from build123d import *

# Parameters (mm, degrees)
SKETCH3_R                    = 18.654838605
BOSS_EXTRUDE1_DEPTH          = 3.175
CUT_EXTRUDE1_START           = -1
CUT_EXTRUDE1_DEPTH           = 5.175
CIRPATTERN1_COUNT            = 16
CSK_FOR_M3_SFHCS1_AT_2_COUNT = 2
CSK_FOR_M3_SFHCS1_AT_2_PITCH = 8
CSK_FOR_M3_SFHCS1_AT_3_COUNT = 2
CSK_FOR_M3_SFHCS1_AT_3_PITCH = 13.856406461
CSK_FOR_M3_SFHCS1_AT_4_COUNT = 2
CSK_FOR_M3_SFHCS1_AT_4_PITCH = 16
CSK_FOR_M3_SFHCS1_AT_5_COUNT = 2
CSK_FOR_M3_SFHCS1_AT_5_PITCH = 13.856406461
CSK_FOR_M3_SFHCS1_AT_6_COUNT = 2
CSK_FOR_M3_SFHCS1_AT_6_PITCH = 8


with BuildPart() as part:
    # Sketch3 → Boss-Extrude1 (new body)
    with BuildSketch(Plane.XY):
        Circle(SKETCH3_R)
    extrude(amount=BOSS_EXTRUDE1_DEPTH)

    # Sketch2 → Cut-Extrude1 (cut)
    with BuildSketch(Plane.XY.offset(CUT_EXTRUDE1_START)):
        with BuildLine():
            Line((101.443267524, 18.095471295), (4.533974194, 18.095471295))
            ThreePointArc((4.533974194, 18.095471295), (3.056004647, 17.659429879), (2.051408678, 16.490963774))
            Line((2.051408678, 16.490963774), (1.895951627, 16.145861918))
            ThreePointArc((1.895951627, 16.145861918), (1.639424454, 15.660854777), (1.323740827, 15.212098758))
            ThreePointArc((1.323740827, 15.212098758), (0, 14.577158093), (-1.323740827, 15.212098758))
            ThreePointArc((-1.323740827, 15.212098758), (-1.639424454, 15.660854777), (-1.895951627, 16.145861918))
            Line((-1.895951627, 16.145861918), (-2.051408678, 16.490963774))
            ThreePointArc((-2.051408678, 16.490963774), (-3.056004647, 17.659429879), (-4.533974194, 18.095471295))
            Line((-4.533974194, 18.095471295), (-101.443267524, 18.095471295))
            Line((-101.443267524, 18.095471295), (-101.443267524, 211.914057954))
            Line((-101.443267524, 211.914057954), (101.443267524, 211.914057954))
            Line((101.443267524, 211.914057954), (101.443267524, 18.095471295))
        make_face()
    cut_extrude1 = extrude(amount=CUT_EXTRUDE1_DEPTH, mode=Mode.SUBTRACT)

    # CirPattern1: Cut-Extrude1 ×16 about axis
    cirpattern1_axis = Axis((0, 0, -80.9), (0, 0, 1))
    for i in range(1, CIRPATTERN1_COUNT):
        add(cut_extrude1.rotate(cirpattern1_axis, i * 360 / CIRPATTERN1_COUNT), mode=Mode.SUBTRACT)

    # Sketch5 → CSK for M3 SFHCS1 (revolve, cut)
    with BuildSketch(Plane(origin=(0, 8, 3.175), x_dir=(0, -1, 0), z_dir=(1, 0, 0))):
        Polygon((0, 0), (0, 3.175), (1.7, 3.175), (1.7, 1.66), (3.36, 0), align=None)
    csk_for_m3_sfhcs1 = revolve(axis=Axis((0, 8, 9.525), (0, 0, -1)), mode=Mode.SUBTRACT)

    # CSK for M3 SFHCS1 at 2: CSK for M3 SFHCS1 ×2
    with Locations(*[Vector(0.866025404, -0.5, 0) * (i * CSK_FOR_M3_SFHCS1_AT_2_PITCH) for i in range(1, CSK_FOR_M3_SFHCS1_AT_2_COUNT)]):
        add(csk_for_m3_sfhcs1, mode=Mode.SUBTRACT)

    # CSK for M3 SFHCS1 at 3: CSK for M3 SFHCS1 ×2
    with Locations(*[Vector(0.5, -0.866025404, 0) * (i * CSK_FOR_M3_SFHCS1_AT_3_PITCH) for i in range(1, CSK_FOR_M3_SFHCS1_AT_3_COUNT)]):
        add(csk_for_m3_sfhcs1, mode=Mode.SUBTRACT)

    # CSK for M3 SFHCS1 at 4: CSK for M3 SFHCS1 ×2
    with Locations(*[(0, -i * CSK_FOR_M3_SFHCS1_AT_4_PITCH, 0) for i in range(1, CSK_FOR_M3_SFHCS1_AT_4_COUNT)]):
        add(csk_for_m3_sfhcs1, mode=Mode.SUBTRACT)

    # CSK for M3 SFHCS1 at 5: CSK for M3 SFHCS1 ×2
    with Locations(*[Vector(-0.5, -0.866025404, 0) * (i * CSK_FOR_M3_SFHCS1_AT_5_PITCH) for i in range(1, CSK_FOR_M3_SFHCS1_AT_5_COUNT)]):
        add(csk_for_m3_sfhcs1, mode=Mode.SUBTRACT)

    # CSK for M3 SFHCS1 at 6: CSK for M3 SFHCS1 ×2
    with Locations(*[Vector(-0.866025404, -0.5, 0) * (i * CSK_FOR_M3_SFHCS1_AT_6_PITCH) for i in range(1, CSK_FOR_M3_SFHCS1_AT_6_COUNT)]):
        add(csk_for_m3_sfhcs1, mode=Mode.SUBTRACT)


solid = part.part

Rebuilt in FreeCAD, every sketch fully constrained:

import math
import FreeCAD as App
import Part
import Sketcher
Q = App.Units.Quantity

doc = App.newDocument("Part")
body = doc.addObject("PartDesign::Body", "Body")

sketch1 = body.newObject("Sketcher::SketchObject", "Sketch")
sketch1.AttachmentSupport = (doc.getObject("XY_Plane"), [""])
sketch1.MapMode = "FlatFace"
sketch1.addGeometry(Part.Circle(App.Vector(0, 0, 0), App.Vector(0, 0, 1), 19), False)
sketch1.addConstraint(Sketcher.Constraint("Coincident", 0, 3, -1, 1))
sketch1.addConstraint(Sketcher.Constraint("Diameter", 0, Q("37.309677 mm")))
pad1 = body.newObject("PartDesign::Pad", "Pad")
pad1.Profile = sketch1
pad1.Length = 3.175

sketch2 = body.newObject("Sketcher::SketchObject", "Sketch001")
sketch2.AttachmentSupport = (doc.getObject("XY_Plane"), [""])
sketch2.MapMode = "FlatFace"
sketch2.AttachmentOffset = App.Placement(App.Vector(0, 0, -1), App.Rotation())
sketch2.addGeometry(Part.LineSegment(App.Vector(4.53, 18.1, 0), App.Vector(101.44, 18.1, 0)), False)
sketch2.addGeometry(Part.LineSegment(App.Vector(101.44, 18.1, 0), App.Vector(101.44, 211.91, 0)), False)
sketch2.addGeometry(Part.LineSegment(App.Vector(101.44, 211.91, 0), App.Vector(-101.44, 211.91, 0)), False)
sketch2.addGeometry(Part.LineSegment(App.Vector(-101.44, 211.91, 0), App.Vector(-101.44, 18.1, 0)), False)
sketch2.addGeometry(Part.LineSegment(App.Vector(-101.44, 18.1, 0), App.Vector(-4.53, 18.1, 0)), False)
sketch2.addGeometry(Part.ArcOfCircle(Part.Circle(App.Vector(-4.53, 15.37, 0), App.Vector(0, 0, 1), 2.72), math.radians(24), math.radians(90)), False)
sketch2.addGeometry(Part.LineSegment(App.Vector(-2.05, 16.49, 0), App.Vector(-1.9, 16.15, 0)), False)
sketch2.addGeometry(Part.ArcOfCircle(Part.Circle(App.Vector(2.06, 17.93, 0), App.Vector(0, 0, 1), 4.34), math.radians(-155.75), math.radians(-141.25)), False)
sketch2.addGeometry(Part.ArcOfCircle(Part.Circle(App.Vector(0, 16.27, 0), App.Vector(0, 0, 1), 1.7), math.radians(-141), math.radians(-39)), False)
sketch2.addGeometry(Part.ArcOfCircle(Part.Circle(App.Vector(-2.06, 17.93, 0), App.Vector(0, 0, 1), 4.34), math.radians(-38.75), math.radians(-24.25)), False)
sketch2.addGeometry(Part.LineSegment(App.Vector(1.9, 16.15, 0), App.Vector(2.05, 16.49, 0)), False)
sketch2.addGeometry(Part.ArcOfCircle(Part.Circle(App.Vector(4.53, 15.37, 0), App.Vector(0, 0, 1), 2.72), math.radians(90), math.radians(156)), False)
sketch2.addConstraint(Sketcher.Constraint("Coincident", 0, 2, 1, 1))
sketch2.addConstraint(Sketcher.Constraint("Coincident", 1, 2, 2, 1))
sketch2.addConstraint(Sketcher.Constraint("Coincident", 2, 2, 3, 1))
sketch2.addConstraint(Sketcher.Constraint("Coincident", 3, 2, 4, 1))
sketch2.addConstraint(Sketcher.Constraint("Tangent", 4, 2, 5, 2))
sketch2.addConstraint(Sketcher.Constraint("Tangent", 5, 1, 6, 1))
sketch2.addConstraint(Sketcher.Constraint("Tangent", 6, 2, 7, 1))
sketch2.addConstraint(Sketcher.Constraint("Tangent", 7, 2, 8, 1))
sketch2.addConstraint(Sketcher.Constraint("Tangent", 8, 2, 9, 1))
sketch2.addConstraint(Sketcher.Constraint("Tangent", 9, 2, 10, 1))
sketch2.addConstraint(Sketcher.Constraint("Tangent", 10, 2, 11, 2))
sketch2.addConstraint(Sketcher.Constraint("Tangent", 11, 1, 0, 1))
sketch2.addConstraint(Sketcher.Constraint("Horizontal", 0))
sketch2.addConstraint(Sketcher.Constraint("Vertical", 1))
sketch2.addConstraint(Sketcher.Constraint("Horizontal", 2))
sketch2.addConstraint(Sketcher.Constraint("Vertical", 3))
sketch2.addConstraint(Sketcher.Constraint("Horizontal", 4))
sketch2.addConstraint(Sketcher.Constraint("Equal", 7, 9))
sketch2.addConstraint(Sketcher.Constraint("Equal", 5, 11))
sketch2.addConstraint(Sketcher.Constraint("Symmetric", 7, 3, 9, 3, -2))
sketch2.addConstraint(Sketcher.Constraint("Symmetric", 5, 3, 11, 3, -2))
sketch2.addConstraint(Sketcher.Constraint("Equal", 0, 4))
sketch2.addConstraint(Sketcher.Constraint("Angle", 6, Q("-65.75 deg")))
sketch2.addConstraint(Sketcher.Constraint("Radius", 5, Q("2.722822 mm")))
sketch2.addConstraint(Sketcher.Constraint("Radius", 7, Q("4.338955 mm")))
sketch2.addConstraint(Sketcher.Constraint("Radius", 8, Q("1.697355 mm")))
sketch2.addConstraint(Sketcher.Constraint("Distance", 6, Q("0.3785 mm")))
sketch2.addConstraint(Sketcher.Constraint("DistanceY", -1, 1, 7, 2, Q("15.212099 mm")))
sketch2.addConstraint(Sketcher.Constraint("DistanceX", 9, 3, 7, 2, Q("0.736402 mm")))
sketch2.addConstraint(Sketcher.Constraint("DistanceX", 0, 1, 0, 2, Q("96.909293 mm")))
sketch2.addConstraint(Sketcher.Constraint("DistanceY", 1, 1, 1, 2, Q("193.818587 mm")))
pocket1 = body.newObject("PartDesign::Pocket", "Pocket")
pocket1.Profile = sketch2
pocket1.Length = 5.175
pocket1.Reversed = True
doc.recompute()

polarpattern = body.newObject("PartDesign::PolarPattern", "PolarPattern")
polarpattern.Originals = [pocket1]
polarpattern.Axis = (doc.getObject("Z_Axis"), [""])
polarpattern.Angle = 360
polarpattern.Occurrences = 16
body.Tip = polarpattern

sketch3 = body.newObject("Sketcher::SketchObject", "Sketch002")
sketch3.AttachmentSupport = (doc.getObject("YZ_Plane"), [""])
sketch3.MapMode = "FlatFace"
sketch3.addGeometry(Part.LineSegment(App.Vector(8, 0, 0), App.Vector(8, 3.2, 0)), False)
sketch3.addGeometry(Part.LineSegment(App.Vector(8, 3.2, 0), App.Vector(4.6, 3.2, 0)), False)
sketch3.addGeometry(Part.LineSegment(App.Vector(4.6, 3.2, 0), App.Vector(6.3, 1.5, 0)), False)
sketch3.addGeometry(Part.LineSegment(App.Vector(6.3, 1.5, 0), App.Vector(6.3, 0, 0)), False)
sketch3.addGeometry(Part.LineSegment(App.Vector(6.3, 0, 0), App.Vector(8, 0, 0)), False)
sketch3.addGeometry(Part.LineSegment(App.Vector(8, 3.2, 0), App.Vector(8, 0, 0)), True)
sketch3.addConstraint(Sketcher.Constraint("Coincident", 0, 2, 1, 1))
sketch3.addConstraint(Sketcher.Constraint("Coincident", 1, 2, 2, 1))
sketch3.addConstraint(Sketcher.Constraint("Coincident", 2, 2, 3, 1))
sketch3.addConstraint(Sketcher.Constraint("Coincident", 3, 2, 4, 1))
sketch3.addConstraint(Sketcher.Constraint("Coincident", 4, 2, 0, 1))
sketch3.addConstraint(Sketcher.Constraint("Vertical", 0))
sketch3.addConstraint(Sketcher.Constraint("Horizontal", 1))
sketch3.addConstraint(Sketcher.Constraint("Vertical", 3))
sketch3.addConstraint(Sketcher.Constraint("Horizontal", 4))
sketch3.addConstraint(Sketcher.Constraint("Vertical", 5))
sketch3.addConstraint(Sketcher.Constraint("Coincident", 5, 1, 0, 2))
sketch3.addConstraint(Sketcher.Constraint("PointOnObject", 3, 2, -1))
sketch3.addConstraint(Sketcher.Constraint("PointOnObject", 5, 2, -1))
sketch3.addConstraint(Sketcher.Constraint("Angle", 2, Q("-45 deg")))
sketch3.addConstraint(Sketcher.Constraint("DistanceX", 4, 1, 4, 2, Q("1.7 mm")))
sketch3.addConstraint(Sketcher.Constraint("DistanceX", -1, 1, 0, 2, Q("8 mm")))
sketch3.addConstraint(Sketcher.Constraint("DistanceX", 1, 2, 1, 1, Q("3.36 mm")))
sketch3.addConstraint(Sketcher.Constraint("DistanceY", 0, 1, 0, 2, Q("3.175 mm")))
groove = body.newObject("PartDesign::Groove", "Groove")
groove.Profile = sketch3
groove.ReferenceAxis = (sketch3, ["Axis0"])
groove.Angle = 360
doc.recompute()

datumline = body.newObject("PartDesign::Line", "DatumLine")
datumline.Placement = App.Placement(App.Vector(0, 0, 0), App.Rotation(App.Vector(0, 0, 1), App.Vector(0.866025404, -0.5, 0)))
linearpattern = body.newObject("PartDesign::LinearPattern", "LinearPattern")
linearpattern.Originals = [groove]
linearpattern.Direction = (datumline, [""])
linearpattern.Mode = "offset"
linearpattern.Offset = 8
linearpattern.Occurrences = 2
body.Tip = linearpattern
doc.recompute()

datumline2 = body.newObject("PartDesign::Line", "DatumLine001")
datumline2.Placement = App.Placement(App.Vector(0, 0, 0), App.Rotation(App.Vector(0, 0, 1), App.Vector(0.5, -0.866025404, 0)))
linearpattern2 = body.newObject("PartDesign::LinearPattern", "LinearPattern001")
linearpattern2.Originals = [groove]
linearpattern2.Direction = (datumline2, [""])
linearpattern2.Mode = "offset"
linearpattern2.Offset = 13.856406
linearpattern2.Occurrences = 2
body.Tip = linearpattern2
doc.recompute()

linearpattern3 = body.newObject("PartDesign::LinearPattern", "LinearPattern002")
linearpattern3.Originals = [groove]
linearpattern3.Direction = (doc.getObject("Y_Axis"), [""])
linearpattern3.Mode = "offset"
linearpattern3.Offset = 16
linearpattern3.Occurrences = 2
linearpattern3.Reversed = True
body.Tip = linearpattern3
doc.recompute()

datumline3 = body.newObject("PartDesign::Line", "DatumLine002")
datumline3.Placement = App.Placement(App.Vector(0, 0, 0), App.Rotation(App.Vector(0, 0, 1), App.Vector(-0.5, -0.866025404, 0)))
linearpattern4 = body.newObject("PartDesign::LinearPattern", "LinearPattern003")
linearpattern4.Originals = [groove]
linearpattern4.Direction = (datumline3, [""])
linearpattern4.Mode = "offset"
linearpattern4.Offset = 13.856406
linearpattern4.Occurrences = 2
body.Tip = linearpattern4
doc.recompute()

datumline4 = body.newObject("PartDesign::Line", "DatumLine003")
datumline4.Placement = App.Placement(App.Vector(0, 0, 0), App.Rotation(App.Vector(0, 0, 1), App.Vector(-0.866025404, -0.5, 0)))
linearpattern5 = body.newObject("PartDesign::LinearPattern", "LinearPattern004")
linearpattern5.Originals = [groove]
linearpattern5.Direction = (datumline4, [""])
linearpattern5.Mode = "offset"
linearpattern5.Offset = 8
linearpattern5.Occurrences = 2
body.Tip = linearpattern5

doc.recompute()
